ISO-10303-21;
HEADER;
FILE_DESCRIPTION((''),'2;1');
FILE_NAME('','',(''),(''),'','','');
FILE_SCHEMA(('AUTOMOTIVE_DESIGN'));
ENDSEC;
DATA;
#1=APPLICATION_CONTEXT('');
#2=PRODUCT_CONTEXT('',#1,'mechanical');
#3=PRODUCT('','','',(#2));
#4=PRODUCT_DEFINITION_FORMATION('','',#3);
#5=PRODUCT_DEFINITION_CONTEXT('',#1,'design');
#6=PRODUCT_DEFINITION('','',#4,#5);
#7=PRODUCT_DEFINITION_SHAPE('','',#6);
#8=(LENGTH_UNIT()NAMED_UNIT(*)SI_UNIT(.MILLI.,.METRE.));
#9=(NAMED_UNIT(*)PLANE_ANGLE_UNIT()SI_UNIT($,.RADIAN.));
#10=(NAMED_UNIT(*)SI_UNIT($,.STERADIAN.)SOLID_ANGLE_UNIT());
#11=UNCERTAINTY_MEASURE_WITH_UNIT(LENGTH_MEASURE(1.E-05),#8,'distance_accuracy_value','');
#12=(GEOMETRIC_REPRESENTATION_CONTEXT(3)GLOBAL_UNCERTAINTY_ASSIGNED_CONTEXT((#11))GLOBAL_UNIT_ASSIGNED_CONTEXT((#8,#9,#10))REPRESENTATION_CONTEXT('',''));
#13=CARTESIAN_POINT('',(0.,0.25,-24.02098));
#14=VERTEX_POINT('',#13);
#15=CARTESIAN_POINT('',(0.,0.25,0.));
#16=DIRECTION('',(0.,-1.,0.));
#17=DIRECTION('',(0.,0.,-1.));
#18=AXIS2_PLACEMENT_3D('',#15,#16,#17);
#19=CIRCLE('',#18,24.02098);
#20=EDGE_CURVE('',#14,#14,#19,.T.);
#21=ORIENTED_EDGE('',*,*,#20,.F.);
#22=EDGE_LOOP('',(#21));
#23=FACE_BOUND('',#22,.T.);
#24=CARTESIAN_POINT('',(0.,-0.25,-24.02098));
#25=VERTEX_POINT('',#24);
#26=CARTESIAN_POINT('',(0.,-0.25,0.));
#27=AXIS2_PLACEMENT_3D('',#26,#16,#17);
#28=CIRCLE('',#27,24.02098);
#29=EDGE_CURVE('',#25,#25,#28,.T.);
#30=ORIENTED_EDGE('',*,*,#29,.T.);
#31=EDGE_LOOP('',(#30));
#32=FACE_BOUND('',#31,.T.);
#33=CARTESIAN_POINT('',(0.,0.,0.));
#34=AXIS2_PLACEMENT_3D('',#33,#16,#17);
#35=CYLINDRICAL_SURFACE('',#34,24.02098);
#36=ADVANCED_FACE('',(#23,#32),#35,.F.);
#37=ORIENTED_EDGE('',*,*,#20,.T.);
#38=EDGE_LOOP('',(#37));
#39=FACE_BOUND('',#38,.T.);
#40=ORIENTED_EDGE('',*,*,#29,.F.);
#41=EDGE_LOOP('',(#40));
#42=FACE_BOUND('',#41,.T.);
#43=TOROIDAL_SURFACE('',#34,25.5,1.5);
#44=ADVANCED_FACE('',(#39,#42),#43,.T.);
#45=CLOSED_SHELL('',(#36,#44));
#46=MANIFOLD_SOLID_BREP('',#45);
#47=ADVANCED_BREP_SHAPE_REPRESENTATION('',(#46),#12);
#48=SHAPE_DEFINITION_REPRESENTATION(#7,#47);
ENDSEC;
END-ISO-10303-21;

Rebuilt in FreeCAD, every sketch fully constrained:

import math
import FreeCAD as App
import Part
import Sketcher
from FreeCAD import Vector

doc = App.newDocument("Part")
body = doc.addObject("PartDesign::Body", "Body")

# Sketch on XY plane
sketch1 = body.newObject("Sketcher::SketchObject", "Sketch")
sketch1.AttachmentSupport = (doc.getObject("XY_Plane"), [""])
sketch1.MapMode = "FlatFace"
sketch1.addGeometry(Part.LineSegment(Vector(-24.02098, -0.25, 0), Vector(-24.02098, 0.25, 0)), False)
sketch1.addGeometry(Part.ArcOfCircle(Part.Circle(Vector(-25.5, 0, 0), Vector(0, 0, 1), 1.5), math.radians(9.594068), math.radians(350.405932)), False)
sketch1.addConstraint(Sketcher.Constraint("Coincident", 0, 1, 1, 2))
sketch1.addConstraint(Sketcher.Constraint("Coincident", 1, 1, 0, 2))
sketch1.addConstraint(Sketcher.Constraint("Vertical", 0))
sketch1.addConstraint(Sketcher.Constraint("PointOnObject", 1, 3, -1))
sketch1.addConstraint(Sketcher.Constraint("Radius", 1, 1.5))
sketch1.addConstraint(Sketcher.Constraint("DistanceY", 0, 1, 0, 2, 0.5))
sketch1.addConstraint(Sketcher.Constraint("DistanceX", 1, 3, -1, 1, 25.5))
revolution = body.newObject("PartDesign::Revolution", "Revolution")
revolution.Profile = sketch1
revolution.ReferenceAxis = (sketch1, ["V_Axis"])
revolution.Angle = 360

doc.recompute()
